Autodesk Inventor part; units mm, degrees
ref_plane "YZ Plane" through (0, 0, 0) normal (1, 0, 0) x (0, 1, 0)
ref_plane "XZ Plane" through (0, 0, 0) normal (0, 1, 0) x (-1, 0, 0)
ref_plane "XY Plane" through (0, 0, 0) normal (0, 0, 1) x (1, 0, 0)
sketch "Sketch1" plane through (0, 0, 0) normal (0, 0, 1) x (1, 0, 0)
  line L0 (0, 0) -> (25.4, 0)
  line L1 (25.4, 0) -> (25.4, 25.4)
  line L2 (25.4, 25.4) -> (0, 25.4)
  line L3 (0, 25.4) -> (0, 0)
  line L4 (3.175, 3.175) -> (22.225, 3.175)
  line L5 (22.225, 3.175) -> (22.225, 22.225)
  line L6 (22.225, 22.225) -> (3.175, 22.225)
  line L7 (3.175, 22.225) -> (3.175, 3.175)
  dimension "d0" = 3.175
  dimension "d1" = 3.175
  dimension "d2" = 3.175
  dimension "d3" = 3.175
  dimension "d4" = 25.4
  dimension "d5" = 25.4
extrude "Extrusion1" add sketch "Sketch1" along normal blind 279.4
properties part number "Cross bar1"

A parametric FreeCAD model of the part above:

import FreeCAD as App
import Part
import Sketcher
Q = App.Units.Quantity

doc = App.newDocument("Part")
params = doc.addObject("Spreadsheet::Sheet", "Params")
for row, (alias, value) in enumerate([
    ("sketch1_width", "1 in"),
    ("pad1_length", "11 in"),
], start=1):
    params.set(f"A{row}", alias)
    params.set(f"B{row}", "=" + value)
    params.setAlias(f"B{row}", alias)

body = doc.addObject("PartDesign::Body", "Body")

sketch1 = body.newObject("Sketcher::SketchObject", "Sketch")
sketch1.AttachmentSupport = (doc.getObject("XY_Plane"), [""])
sketch1.MapMode = "FlatFace"
sketch1.addGeometry(Part.LineSegment(App.Vector(0, 25.4, 0), App.Vector(0, 0, 0)), False)
sketch1.addGeometry(Part.LineSegment(App.Vector(0, 0, 0), App.Vector(25.4, 0, 0)), False)
sketch1.addGeometry(Part.LineSegment(App.Vector(25.4, 0, 0), App.Vector(25.4, 25.4, 0)), False)
sketch1.addGeometry(Part.LineSegment(App.Vector(25.4, 25.4, 0), App.Vector(0, 25.4, 0)), False)
sketch1.addGeometry(Part.LineSegment(App.Vector(22.225, 3.175, 0), App.Vector(3.175, 3.175, 0)), False)
sketch1.addGeometry(Part.LineSegment(App.Vector(3.175, 3.175, 0), App.Vector(3.175, 22.225, 0)), False)
sketch1.addGeometry(Part.LineSegment(App.Vector(3.175, 22.225, 0), App.Vector(22.225, 22.225, 0)), False)
sketch1.addGeometry(Part.LineSegment(App.Vector(22.225, 22.225, 0), App.Vector(22.225, 3.175, 0)), False)
sketch1.addConstraint(Sketcher.Constraint("Coincident", 0, 2, 1, 1))
sketch1.addConstraint(Sketcher.Constraint("Coincident", 1, 2, 2, 1))
sketch1.addConstraint(Sketcher.Constraint("Coincident", 2, 2, 3, 1))
sketch1.addConstraint(Sketcher.Constraint("Coincident", 3, 2, 0, 1))
sketch1.addConstraint(Sketcher.Constraint("Coincident", 4, 2, 5, 1))
sketch1.addConstraint(Sketcher.Constraint("Coincident", 5, 2, 6, 1))
sketch1.addConstraint(Sketcher.Constraint("Coincident", 6, 2, 7, 1))
sketch1.addConstraint(Sketcher.Constraint("Coincident", 7, 2, 4, 1))
sketch1.addConstraint(Sketcher.Constraint("Vertical", 0))
sketch1.addConstraint(Sketcher.Constraint("Horizontal", 1))
sketch1.addConstraint(Sketcher.Constraint("Vertical", 2))
sketch1.addConstraint(Sketcher.Constraint("Horizontal", 3))
sketch1.addConstraint(Sketcher.Constraint("Horizontal", 4))
sketch1.addConstraint(Sketcher.Constraint("Vertical", 5))
sketch1.addConstraint(Sketcher.Constraint("Horizontal", 6))
sketch1.addConstraint(Sketcher.Constraint("Vertical", 7))
sketch1.addConstraint(Sketcher.Constraint("Coincident", 0, 2, -1, 1))
sketch1.addConstraint(Sketcher.Constraint("Equal", 3, 0))
sketch1.addConstraint(Sketcher.Constraint("Equal", 6, 5))
sketch1.addConstraint(Sketcher.Constraint("DistanceX", 1, 1, 1, 2, Q("1 in")))
sketch1.addConstraint(Sketcher.Constraint("DistanceX", -1, 1, 4, 2, Q("0.125 in")))
sketch1.addConstraint(Sketcher.Constraint("DistanceY", -1, 1, 4, 2, Q("0.125 in")))
sketch1.addConstraint(Sketcher.Constraint("DistanceY", 5, 2, 3, 2, Q("0.125 in")))
sketch1.setExpression("Constraints[19]", "Params.sketch1_width")
pad1 = body.newObject("PartDesign::Pad", "Pad")
pad1.Profile = sketch1
pad1.setExpression("Length", "Params.pad1_length")

doc.recompute()
